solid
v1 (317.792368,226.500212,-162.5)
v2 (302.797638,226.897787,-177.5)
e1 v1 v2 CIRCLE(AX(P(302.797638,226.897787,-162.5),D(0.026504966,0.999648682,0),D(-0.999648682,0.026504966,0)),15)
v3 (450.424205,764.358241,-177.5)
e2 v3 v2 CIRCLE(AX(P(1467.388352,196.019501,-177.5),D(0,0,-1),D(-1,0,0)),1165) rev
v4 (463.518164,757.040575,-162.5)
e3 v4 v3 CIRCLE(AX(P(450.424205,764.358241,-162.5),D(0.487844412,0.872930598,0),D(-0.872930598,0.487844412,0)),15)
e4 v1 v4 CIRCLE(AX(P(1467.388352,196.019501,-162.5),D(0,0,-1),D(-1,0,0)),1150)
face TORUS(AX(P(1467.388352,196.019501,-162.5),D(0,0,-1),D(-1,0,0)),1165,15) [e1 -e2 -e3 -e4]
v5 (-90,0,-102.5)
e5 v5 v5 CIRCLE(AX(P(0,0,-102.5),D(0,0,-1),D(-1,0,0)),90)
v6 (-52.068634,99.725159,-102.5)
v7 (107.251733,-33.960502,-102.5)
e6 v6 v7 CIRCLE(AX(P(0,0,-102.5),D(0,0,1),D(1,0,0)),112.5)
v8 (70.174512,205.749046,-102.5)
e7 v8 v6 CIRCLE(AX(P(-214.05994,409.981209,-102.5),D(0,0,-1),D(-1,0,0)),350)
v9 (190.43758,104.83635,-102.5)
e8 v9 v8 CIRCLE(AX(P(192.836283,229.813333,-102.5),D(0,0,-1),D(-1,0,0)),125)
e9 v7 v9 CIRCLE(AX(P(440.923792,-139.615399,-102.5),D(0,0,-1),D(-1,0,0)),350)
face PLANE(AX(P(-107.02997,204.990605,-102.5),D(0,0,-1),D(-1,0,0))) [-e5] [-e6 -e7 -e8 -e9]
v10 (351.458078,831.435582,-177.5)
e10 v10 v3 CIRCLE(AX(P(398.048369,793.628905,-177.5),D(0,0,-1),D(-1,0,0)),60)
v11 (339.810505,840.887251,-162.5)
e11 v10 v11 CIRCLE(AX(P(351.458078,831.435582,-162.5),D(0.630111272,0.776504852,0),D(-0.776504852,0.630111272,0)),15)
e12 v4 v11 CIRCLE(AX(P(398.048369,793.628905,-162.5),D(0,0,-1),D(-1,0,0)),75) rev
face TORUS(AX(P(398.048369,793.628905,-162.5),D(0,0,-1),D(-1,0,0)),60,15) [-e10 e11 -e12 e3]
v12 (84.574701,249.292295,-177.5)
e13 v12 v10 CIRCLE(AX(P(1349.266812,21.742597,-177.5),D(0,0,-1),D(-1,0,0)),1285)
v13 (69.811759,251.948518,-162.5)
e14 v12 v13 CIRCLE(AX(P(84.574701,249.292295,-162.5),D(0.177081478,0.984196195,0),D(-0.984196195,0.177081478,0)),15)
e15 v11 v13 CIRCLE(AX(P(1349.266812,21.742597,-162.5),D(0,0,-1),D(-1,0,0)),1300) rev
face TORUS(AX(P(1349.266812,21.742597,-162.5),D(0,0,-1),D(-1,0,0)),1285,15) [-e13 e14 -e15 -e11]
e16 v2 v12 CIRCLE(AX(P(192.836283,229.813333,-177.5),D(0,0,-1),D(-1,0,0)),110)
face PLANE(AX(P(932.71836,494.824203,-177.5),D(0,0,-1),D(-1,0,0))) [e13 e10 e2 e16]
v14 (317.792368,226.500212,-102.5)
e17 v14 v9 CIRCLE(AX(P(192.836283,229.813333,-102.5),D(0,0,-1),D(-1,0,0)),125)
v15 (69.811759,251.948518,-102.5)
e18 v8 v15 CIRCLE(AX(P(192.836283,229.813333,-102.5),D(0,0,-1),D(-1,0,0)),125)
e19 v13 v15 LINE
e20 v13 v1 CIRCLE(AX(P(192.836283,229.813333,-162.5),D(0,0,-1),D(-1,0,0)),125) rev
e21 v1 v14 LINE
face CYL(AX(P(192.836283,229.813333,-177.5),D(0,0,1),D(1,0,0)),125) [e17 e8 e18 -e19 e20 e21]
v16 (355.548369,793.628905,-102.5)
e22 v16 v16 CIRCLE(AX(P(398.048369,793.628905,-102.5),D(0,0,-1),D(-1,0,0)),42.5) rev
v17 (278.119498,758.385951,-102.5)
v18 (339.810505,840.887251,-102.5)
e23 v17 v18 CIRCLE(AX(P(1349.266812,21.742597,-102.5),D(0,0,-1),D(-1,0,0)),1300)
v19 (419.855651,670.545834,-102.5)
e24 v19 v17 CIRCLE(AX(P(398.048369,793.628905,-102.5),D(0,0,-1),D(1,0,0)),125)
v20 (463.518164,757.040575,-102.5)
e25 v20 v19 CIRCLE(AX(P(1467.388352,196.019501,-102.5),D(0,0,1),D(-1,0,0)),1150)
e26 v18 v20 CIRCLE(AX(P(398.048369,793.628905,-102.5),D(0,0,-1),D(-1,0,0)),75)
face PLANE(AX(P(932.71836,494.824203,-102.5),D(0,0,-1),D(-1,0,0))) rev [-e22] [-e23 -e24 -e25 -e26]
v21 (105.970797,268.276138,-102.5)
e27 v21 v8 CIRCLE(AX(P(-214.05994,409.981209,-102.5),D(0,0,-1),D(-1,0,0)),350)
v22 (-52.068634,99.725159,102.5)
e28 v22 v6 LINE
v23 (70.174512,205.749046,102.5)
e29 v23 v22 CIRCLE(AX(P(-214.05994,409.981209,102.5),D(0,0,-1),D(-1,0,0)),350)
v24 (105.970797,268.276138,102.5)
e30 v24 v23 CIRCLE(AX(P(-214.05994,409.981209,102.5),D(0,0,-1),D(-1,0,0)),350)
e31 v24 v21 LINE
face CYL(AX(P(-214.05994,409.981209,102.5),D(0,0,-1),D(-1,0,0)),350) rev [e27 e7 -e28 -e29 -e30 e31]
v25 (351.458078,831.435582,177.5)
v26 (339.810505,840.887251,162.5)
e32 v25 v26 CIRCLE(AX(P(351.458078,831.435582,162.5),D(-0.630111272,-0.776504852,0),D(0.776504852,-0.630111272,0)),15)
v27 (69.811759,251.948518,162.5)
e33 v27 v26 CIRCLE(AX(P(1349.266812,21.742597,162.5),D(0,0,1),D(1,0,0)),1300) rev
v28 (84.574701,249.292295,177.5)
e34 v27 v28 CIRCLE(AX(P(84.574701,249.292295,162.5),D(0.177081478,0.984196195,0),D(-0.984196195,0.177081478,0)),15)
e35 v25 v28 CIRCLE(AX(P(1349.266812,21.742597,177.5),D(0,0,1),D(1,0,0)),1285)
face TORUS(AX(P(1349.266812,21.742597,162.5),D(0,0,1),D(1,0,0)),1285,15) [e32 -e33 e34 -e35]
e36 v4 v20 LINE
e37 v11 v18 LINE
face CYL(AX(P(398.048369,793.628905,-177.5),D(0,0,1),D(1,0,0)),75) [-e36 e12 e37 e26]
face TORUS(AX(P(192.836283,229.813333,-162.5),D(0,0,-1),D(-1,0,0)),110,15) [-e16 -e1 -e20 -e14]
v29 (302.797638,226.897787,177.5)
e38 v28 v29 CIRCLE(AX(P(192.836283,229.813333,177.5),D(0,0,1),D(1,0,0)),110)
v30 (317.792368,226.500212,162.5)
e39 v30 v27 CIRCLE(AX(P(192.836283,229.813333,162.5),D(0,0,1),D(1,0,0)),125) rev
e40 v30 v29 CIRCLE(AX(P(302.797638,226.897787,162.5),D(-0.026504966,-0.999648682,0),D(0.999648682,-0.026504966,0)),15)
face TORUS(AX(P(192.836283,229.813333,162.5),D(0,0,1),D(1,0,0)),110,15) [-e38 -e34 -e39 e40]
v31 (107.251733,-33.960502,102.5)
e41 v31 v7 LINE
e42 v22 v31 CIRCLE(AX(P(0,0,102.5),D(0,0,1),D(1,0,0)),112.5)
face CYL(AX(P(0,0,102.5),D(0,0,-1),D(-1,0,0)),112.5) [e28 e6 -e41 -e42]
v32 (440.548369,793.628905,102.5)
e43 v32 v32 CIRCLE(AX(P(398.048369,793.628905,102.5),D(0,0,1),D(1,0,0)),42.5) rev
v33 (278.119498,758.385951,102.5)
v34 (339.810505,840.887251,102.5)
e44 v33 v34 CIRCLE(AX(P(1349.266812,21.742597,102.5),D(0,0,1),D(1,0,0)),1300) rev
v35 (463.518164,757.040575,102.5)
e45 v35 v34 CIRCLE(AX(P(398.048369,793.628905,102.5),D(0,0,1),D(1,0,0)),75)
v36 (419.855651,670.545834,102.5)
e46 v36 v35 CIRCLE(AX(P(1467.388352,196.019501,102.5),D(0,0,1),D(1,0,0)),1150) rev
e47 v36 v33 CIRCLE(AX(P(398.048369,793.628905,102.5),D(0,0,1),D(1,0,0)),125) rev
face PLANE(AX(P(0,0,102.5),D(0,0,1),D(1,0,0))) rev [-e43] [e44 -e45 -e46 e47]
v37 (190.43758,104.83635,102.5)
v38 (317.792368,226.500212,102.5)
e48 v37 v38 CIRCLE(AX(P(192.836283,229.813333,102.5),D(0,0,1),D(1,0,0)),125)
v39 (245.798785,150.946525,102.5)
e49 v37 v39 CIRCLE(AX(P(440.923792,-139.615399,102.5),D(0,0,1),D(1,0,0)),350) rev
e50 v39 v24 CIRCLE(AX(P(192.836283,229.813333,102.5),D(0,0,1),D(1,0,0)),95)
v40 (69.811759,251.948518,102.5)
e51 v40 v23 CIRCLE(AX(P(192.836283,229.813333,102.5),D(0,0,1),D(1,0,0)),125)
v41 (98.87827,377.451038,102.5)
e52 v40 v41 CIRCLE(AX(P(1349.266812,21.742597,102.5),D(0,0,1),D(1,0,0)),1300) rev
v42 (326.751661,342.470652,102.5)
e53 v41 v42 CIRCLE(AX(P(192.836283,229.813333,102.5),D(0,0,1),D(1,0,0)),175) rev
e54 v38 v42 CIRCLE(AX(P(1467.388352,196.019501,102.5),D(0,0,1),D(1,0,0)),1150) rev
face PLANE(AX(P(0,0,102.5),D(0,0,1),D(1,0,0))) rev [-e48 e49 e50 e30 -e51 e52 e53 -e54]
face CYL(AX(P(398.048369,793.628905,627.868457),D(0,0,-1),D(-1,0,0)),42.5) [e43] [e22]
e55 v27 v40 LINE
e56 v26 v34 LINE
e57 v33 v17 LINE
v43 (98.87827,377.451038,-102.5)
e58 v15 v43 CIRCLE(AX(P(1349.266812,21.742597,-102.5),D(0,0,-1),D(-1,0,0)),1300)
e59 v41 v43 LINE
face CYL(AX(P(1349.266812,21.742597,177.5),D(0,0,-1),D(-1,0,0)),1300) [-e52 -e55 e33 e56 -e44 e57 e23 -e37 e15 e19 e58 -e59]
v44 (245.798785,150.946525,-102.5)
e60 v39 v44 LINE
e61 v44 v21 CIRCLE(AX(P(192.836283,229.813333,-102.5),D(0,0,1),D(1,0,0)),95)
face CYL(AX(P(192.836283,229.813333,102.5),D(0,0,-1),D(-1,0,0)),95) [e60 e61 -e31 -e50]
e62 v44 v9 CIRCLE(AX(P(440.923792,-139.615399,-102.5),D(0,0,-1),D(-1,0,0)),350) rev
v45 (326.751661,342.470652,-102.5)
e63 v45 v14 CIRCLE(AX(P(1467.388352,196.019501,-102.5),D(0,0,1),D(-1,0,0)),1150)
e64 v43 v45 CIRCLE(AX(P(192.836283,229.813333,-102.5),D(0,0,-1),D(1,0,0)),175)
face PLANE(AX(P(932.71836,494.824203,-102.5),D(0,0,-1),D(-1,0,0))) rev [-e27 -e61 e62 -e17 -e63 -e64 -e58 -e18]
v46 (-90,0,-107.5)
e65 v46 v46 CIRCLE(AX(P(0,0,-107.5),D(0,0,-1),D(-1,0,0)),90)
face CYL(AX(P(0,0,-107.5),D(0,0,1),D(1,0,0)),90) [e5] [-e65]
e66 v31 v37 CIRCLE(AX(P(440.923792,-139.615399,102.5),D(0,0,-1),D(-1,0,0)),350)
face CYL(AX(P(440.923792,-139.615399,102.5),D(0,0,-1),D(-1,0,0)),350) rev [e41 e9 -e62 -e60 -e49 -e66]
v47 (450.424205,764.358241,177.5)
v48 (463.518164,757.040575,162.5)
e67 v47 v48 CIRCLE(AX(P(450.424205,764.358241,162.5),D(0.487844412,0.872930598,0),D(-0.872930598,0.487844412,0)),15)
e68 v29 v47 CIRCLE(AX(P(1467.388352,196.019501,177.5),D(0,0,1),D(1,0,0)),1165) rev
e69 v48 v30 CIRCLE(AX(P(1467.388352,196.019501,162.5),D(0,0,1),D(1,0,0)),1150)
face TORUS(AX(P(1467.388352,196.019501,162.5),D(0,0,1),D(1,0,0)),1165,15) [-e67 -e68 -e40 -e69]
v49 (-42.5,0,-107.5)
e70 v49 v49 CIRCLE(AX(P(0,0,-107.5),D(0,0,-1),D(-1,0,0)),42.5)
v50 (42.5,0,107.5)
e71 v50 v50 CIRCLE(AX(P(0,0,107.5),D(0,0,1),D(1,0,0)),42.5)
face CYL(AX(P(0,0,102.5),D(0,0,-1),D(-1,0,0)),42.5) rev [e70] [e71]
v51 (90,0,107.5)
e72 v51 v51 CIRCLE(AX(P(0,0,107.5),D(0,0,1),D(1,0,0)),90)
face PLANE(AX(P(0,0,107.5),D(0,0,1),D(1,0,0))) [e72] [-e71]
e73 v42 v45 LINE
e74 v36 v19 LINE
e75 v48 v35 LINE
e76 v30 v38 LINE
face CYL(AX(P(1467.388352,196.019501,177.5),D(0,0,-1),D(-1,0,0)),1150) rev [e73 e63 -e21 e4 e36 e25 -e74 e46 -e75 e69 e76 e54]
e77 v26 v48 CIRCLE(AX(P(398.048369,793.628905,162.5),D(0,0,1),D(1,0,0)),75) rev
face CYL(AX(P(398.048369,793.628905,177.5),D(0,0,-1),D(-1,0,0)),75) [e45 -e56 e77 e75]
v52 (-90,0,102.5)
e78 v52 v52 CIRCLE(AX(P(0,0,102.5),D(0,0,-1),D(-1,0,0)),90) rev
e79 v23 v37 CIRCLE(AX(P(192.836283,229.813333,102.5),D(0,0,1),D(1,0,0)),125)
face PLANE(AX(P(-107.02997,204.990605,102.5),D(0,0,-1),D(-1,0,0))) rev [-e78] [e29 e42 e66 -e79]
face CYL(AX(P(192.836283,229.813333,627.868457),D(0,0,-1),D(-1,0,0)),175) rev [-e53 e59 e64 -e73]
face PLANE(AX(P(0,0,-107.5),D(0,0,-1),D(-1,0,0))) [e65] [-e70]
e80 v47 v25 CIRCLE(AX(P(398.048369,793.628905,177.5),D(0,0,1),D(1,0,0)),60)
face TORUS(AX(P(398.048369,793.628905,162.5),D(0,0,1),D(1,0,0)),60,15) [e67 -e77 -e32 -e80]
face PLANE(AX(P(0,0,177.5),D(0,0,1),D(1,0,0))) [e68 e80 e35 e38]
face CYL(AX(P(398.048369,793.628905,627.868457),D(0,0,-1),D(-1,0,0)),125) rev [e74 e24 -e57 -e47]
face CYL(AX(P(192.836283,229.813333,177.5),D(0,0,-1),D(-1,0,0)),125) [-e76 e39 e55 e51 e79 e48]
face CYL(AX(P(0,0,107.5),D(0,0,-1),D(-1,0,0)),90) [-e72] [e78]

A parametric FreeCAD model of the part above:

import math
import FreeCAD as App
import Part
import Sketcher
from FreeCAD import Vector
Q = App.Units.Quantity


def edges_at(feature, points):
    """Names of the edges that pass closest to the given points."""
    edges = feature.Shape.Edges
    near = lambda p: min(range(len(edges)), key=lambda i: edges[i].distToShape(Part.Vertex(*p))[0])
    return sorted({f"Edge{near(p) + 1}" for p in points})

doc = App.newDocument("Part")
body = doc.addObject("PartDesign::Body", "Body")

# Sketch on XY plane
sketch1 = body.newObject("Sketcher::SketchObject", "Sketch")
sketch1.AttachmentSupport = (doc.getObject("XY_Plane"), [""])
sketch1.MapMode = "FlatFace"
sketch1.addGeometry(Part.ArcOfCircle(Part.Circle(Vector(0, 0, 0), Vector(0, 0, 1), 112), math.radians(118), math.radians(342)), False)
sketch1.addGeometry(Part.ArcOfCircle(Part.Circle(Vector(441, -140, 0), Vector(0, 0, 1), 350), math.radians(124), math.radians(162)), False)
sketch1.addGeometry(Part.ArcOfCircle(Part.Circle(Vector(193, 230, 0), Vector(0, 0, 1), 95), math.radians(-56), math.radians(156)), False)
sketch1.addGeometry(Part.ArcOfCircle(Part.Circle(Vector(-214, 410, 0), Vector(0, 0, 1), 350), math.radians(-62), math.radians(-24)), False)
sketch1.addGeometry(Part.Circle(Vector(0, 0, 0), Vector(0, 0, 1), 42), False)
sketch1.addConstraint(Sketcher.Constraint("Tangent", 0, 2, 1, 2))
sketch1.addConstraint(Sketcher.Constraint("Tangent", 1, 1, 2, 1))
sketch1.addConstraint(Sketcher.Constraint("Tangent", 2, 2, 3, 2))
sketch1.addConstraint(Sketcher.Constraint("Tangent", 3, 1, 0, 1))
sketch1.addConstraint(Sketcher.Constraint("Coincident", 0, 3, -1, 1))
sketch1.addConstraint(Sketcher.Constraint("Coincident", 4, 3, -1, 1))
sketch1.addConstraint(Sketcher.Constraint("Equal", 1, 3))
sketch1.addConstraint(Sketcher.Constraint("Diameter", 4, Q("85 mm")))
sketch1.addConstraint(Sketcher.Constraint("Radius", 1, Q("350 mm")))
sketch1.addConstraint(Sketcher.Constraint("Radius", 2, Q("95 mm")))
sketch1.addConstraint(Sketcher.Constraint("Radius", 0, Q("112.5 mm")))
sketch1.addConstraint(Sketcher.Constraint("DistanceY", 1, 3, -1, 1, Q("139.615399 mm")))
sketch1.addConstraint(Sketcher.Constraint("DistanceX", 3, 3, -1, 1, Q("214.05994 mm")))
pad1 = body.newObject("PartDesign::Pad", "Pad")
pad1.Profile = sketch1
pad1.Length = 205
pad1.Midplane = True

# Sketch on XY plane
sketch2 = body.newObject("Sketcher::SketchObject", "Sketch001")
sketch2.AttachmentSupport = (doc.getObject("XY_Plane"), [""])
sketch2.MapMode = "FlatFace"
sketch2.AttachmentOffset = App.Placement(Vector(0, 0, 102.5), App.Rotation())
sketch2.addGeometry(Part.Circle(Vector(0, 0, 0), Vector(0, 0, 1), 90), False)
sketch2.addGeometry(Part.Circle(Vector(0, 0, 0), Vector(0, 0, 1), 42), False)
sketch2.addConstraint(Sketcher.Constraint("Coincident", 0, 3, -1, 1))
sketch2.addConstraint(Sketcher.Constraint("Coincident", 1, 3, -1, 1))
sketch2.addConstraint(Sketcher.Constraint("Diameter", 0, Q("180 mm")))
sketch2.addConstraint(Sketcher.Constraint("Diameter", 1, Q("85 mm")))
pad2 = body.newObject("PartDesign::Pad", "Pad001")
pad2.Profile = sketch2
pad2.Length = 5

# Sketch on XY plane
sketch3 = body.newObject("Sketcher::SketchObject", "Sketch002")
sketch3.AttachmentSupport = (doc.getObject("XY_Plane"), [""])
sketch3.MapMode = "FlatFace"
sketch3.AttachmentOffset = App.Placement(Vector(0, 0, -102.5), App.Rotation())
sketch3.addGeometry(Part.Circle(Vector(0, 0, 0), Vector(0, 0, 1), 90), False)
sketch3.addGeometry(Part.Circle(Vector(0, 0, 0), Vector(0, 0, 1), 42), False)
sketch3.addConstraint(Sketcher.Constraint("Coincident", 0, 3, -1, 1))
sketch3.addConstraint(Sketcher.Constraint("Coincident", 1, 3, -1, 1))
sketch3.addConstraint(Sketcher.Constraint("Diameter", 0, Q("180 mm")))
sketch3.addConstraint(Sketcher.Constraint("Diameter", 1, Q("85 mm")))
pad3 = body.newObject("PartDesign::Pad", "Pad002")
pad3.Profile = sketch3
pad3.Length = 5
pad3.Reversed = True

# Sketch on XY plane
sketch4 = body.newObject("Sketcher::SketchObject", "Sketch003")
sketch4.AttachmentSupport = (doc.getObject("XY_Plane"), [""])
sketch4.MapMode = "FlatFace"
sketch4.AttachmentOffset = App.Placement(Vector(0, 0, 102.5), App.Rotation())
sketch4.addGeometry(Part.ArcOfCircle(Part.Circle(Vector(1349, 22, 0), Vector(0, 0, 1), 1300), math.radians(141), math.radians(170)), False)
sketch4.addGeometry(Part.ArcOfCircle(Part.Circle(Vector(193, 230, 0), Vector(0, 0, 1), 125), math.radians(170), math.radians(358)), False)
sketch4.addGeometry(Part.ArcOfCircle(Part.Circle(Vector(1467, 196, 0), Vector(0, 0, 1), 1150), math.radians(151), math.radians(178)), False)
sketch4.addGeometry(Part.ArcOfCircle(Part.Circle(Vector(398, 794, 0), Vector(0, 0, 1), 75), math.radians(-29), math.radians(141)), False)
sketch4.addConstraint(Sketcher.Constraint("Tangent", 0, 2, 1, 1))
sketch4.addConstraint(Sketcher.Constraint("Tangent", 1, 2, 2, 2))
sketch4.addConstraint(Sketcher.Constraint("Tangent", 2, 1, 3, 1))
sketch4.addConstraint(Sketcher.Constraint("Tangent", 3, 2, 0, 1))
sketch4.addConstraint(Sketcher.Constraint("Radius", 0, Q("1300 mm")))
sketch4.addConstraint(Sketcher.Constraint("Radius", 1, Q("125 mm")))
sketch4.addConstraint(Sketcher.Constraint("Radius", 2, Q("1150 mm")))
sketch4.addConstraint(Sketcher.Constraint("Radius", 3, Q("75 mm")))
sketch4.addConstraint(Sketcher.Constraint("DistanceX", 1, 2, 3, 3, Q("80.256001 mm")))
sketch4.addConstraint(Sketcher.Constraint("DistanceY", -1, 1, 2, 3, Q("196.019501 mm")))
sketch4.addConstraint(Sketcher.Constraint("DistanceX", -1, 1, 3, 3, Q("398.048369 mm")))
sketch4.addConstraint(Sketcher.Constraint("DistanceX", 1, 3, 0, 3, Q("1156.430529 mm")))
pad4 = body.newObject("PartDesign::Pad", "Pad003")
pad4.Profile = sketch4
pad4.Length = 75

# Sketch on XY plane
sketch5 = body.newObject("Sketcher::SketchObject", "Sketch004")
sketch5.AttachmentSupport = (doc.getObject("XY_Plane"), [""])
sketch5.MapMode = "FlatFace"
sketch5.AttachmentOffset = App.Placement(Vector(0, 0, -102.5), App.Rotation())
sketch5.addGeometry(Part.ArcOfCircle(Part.Circle(Vector(193, 230, 0), Vector(0, 0, 1), 125), math.radians(170), math.radians(358)), False)
sketch5.addGeometry(Part.ArcOfCircle(Part.Circle(Vector(1349, 22, 0), Vector(0, 0, 1), 1300), math.radians(141), math.radians(170)), False)
sketch5.addGeometry(Part.ArcOfCircle(Part.Circle(Vector(398, 794, 0), Vector(0, 0, 1), 75), math.radians(-29), math.radians(141)), False)
sketch5.addGeometry(Part.ArcOfCircle(Part.Circle(Vector(1467, 196, 0), Vector(0, 0, 1), 1150), math.radians(151), math.radians(178)), False)
sketch5.addConstraint(Sketcher.Constraint("Tangent", 0, 1, 1, 2))
sketch5.addConstraint(Sketcher.Constraint("Tangent", 1, 1, 2, 2))
sketch5.addConstraint(Sketcher.Constraint("Tangent", 2, 1, 3, 1))
sketch5.addConstraint(Sketcher.Constraint("Tangent", 3, 2, 0, 2))
sketch5.addConstraint(Sketcher.Constraint("Radius", 0, Q("125 mm")))
sketch5.addConstraint(Sketcher.Constraint("Radius", 1, Q("1300 mm")))
sketch5.addConstraint(Sketcher.Constraint("Radius", 2, Q("75 mm")))
sketch5.addConstraint(Sketcher.Constraint("Radius", 3, Q("1150 mm")))
sketch5.addConstraint(Sketcher.Constraint("DistanceX", 3, 2, 2, 3, Q("80.256001 mm")))
sketch5.addConstraint(Sketcher.Constraint("DistanceY", -1, 1, 3, 3, Q("196.019501 mm")))
sketch5.addConstraint(Sketcher.Constraint("DistanceX", -1, 1, 2, 3, Q("398.048369 mm")))
sketch5.addConstraint(Sketcher.Constraint("DistanceX", 0, 3, 1, 3, Q("1156.430529 mm")))
pad5 = body.newObject("PartDesign::Pad", "Pad004")
pad5.Profile = sketch5
pad5.Length = 75
pad5.Reversed = True
doc.recompute()

fillet = body.newObject("PartDesign::Fillet", "Fillet")
fillet.Base = (pad5, edges_at(pad5, [
    (167.535, 563.507, 177.5),
    (180.076, 105.466, 177.5),
    (358.46, 500.614, 177.5),
    (440.127, 855.712, 177.5),
    (358.46, 500.614, -177.5),
    (180.076, 105.466, -177.5),
    (167.535, 563.507, -177.5),
    (440.127, 855.712, -177.5),
]))
fillet.Radius = 15

# Sketch on XY plane
sketch6 = body.newObject("Sketcher::SketchObject", "Sketch005")
sketch6.AttachmentSupport = (doc.getObject("XY_Plane"), [""])
sketch6.MapMode = "FlatFace"
sketch6.AttachmentOffset = App.Placement(Vector(0, 0, -102.5), App.Rotation())
sketch6.addGeometry(Part.Circle(Vector(398, 794, 0), Vector(0, 0, 1), 42), False)
sketch6.addGeometry(Part.ArcOfCircle(Part.Circle(Vector(1467, 196, 0), Vector(0, 0, 1), 1150), math.radians(155.63), math.radians(172.68)), False)
sketch6.addGeometry(Part.ArcOfCircle(Part.Circle(Vector(398, 794, 0), Vector(0, 0, 1), 125), math.radians(-164), math.radians(-80)), False)
sketch6.addGeometry(Part.ArcOfCircle(Part.Circle(Vector(1349, 22, 0), Vector(0, 0, 1), 1300), math.radians(145.48), math.radians(164.12)), False)
sketch6.addGeometry(Part.ArcOfCircle(Part.Circle(Vector(193, 230, 0), Vector(0, 0, 1), 175), math.radians(40), math.radians(122)), False)
sketch6.addConstraint(Sketcher.Constraint("Coincident", 1, 1, 2, 2))
sketch6.addConstraint(Sketcher.Constraint("Coincident", 2, 1, 3, 1))
sketch6.addConstraint(Sketcher.Constraint("Coincident", 3, 2, 4, 2))
sketch6.addConstraint(Sketcher.Constraint("Coincident", 4, 1, 1, 2))
sketch6.addConstraint(Sketcher.Constraint("Coincident", 2, 3, 0, 3))
sketch6.addConstraint(Sketcher.Constraint("Diameter", 0, Q("85 mm")))
sketch6.addConstraint(Sketcher.Constraint("Radius", 1, Q("1150 mm")))
sketch6.addConstraint(Sketcher.Constraint("Radius", 2, Q("125 mm")))
sketch6.addConstraint(Sketcher.Constraint("Radius", 3, Q("1300 mm")))
sketch6.addConstraint(Sketcher.Constraint("Radius", 4, Q("175 mm")))
sketch6.addConstraint(Sketcher.Constraint("DistanceY", -1, 1, 1, 3, Q("196.019501 mm")))
sketch6.addConstraint(Sketcher.Constraint("DistanceX", 3, 2, 0, 3, Q("299.170098 mm")))
sketch6.addConstraint(Sketcher.Constraint("DistanceY", 4, 1, 2, 1, Q("415.915299 mm")))
sketch6.addConstraint(Sketcher.Constraint("DistanceX", -1, 1, 0, 3, Q("398.048369 mm")))
sketch6.addConstraint(Sketcher.Constraint("DistanceY", -1, 1, 2, 1, Q("758.385951 mm")))
sketch6.addConstraint(Sketcher.Constraint("DistanceX", -1, 1, 4, 1, Q("326.751661 mm")))
sketch6.addConstraint(Sketcher.Constraint("DistanceX", 3, 3, 1, 3, Q("118.12154 mm")))
sketch6.addConstraint(Sketcher.Constraint("DistanceY", 3, 3, 0, 3, Q("771.886309 mm")))
pad6 = body.newObject("PartDesign::Pad", "Pad005")
pad6.Profile = sketch6
pad6.Length = 205

doc.recompute()
